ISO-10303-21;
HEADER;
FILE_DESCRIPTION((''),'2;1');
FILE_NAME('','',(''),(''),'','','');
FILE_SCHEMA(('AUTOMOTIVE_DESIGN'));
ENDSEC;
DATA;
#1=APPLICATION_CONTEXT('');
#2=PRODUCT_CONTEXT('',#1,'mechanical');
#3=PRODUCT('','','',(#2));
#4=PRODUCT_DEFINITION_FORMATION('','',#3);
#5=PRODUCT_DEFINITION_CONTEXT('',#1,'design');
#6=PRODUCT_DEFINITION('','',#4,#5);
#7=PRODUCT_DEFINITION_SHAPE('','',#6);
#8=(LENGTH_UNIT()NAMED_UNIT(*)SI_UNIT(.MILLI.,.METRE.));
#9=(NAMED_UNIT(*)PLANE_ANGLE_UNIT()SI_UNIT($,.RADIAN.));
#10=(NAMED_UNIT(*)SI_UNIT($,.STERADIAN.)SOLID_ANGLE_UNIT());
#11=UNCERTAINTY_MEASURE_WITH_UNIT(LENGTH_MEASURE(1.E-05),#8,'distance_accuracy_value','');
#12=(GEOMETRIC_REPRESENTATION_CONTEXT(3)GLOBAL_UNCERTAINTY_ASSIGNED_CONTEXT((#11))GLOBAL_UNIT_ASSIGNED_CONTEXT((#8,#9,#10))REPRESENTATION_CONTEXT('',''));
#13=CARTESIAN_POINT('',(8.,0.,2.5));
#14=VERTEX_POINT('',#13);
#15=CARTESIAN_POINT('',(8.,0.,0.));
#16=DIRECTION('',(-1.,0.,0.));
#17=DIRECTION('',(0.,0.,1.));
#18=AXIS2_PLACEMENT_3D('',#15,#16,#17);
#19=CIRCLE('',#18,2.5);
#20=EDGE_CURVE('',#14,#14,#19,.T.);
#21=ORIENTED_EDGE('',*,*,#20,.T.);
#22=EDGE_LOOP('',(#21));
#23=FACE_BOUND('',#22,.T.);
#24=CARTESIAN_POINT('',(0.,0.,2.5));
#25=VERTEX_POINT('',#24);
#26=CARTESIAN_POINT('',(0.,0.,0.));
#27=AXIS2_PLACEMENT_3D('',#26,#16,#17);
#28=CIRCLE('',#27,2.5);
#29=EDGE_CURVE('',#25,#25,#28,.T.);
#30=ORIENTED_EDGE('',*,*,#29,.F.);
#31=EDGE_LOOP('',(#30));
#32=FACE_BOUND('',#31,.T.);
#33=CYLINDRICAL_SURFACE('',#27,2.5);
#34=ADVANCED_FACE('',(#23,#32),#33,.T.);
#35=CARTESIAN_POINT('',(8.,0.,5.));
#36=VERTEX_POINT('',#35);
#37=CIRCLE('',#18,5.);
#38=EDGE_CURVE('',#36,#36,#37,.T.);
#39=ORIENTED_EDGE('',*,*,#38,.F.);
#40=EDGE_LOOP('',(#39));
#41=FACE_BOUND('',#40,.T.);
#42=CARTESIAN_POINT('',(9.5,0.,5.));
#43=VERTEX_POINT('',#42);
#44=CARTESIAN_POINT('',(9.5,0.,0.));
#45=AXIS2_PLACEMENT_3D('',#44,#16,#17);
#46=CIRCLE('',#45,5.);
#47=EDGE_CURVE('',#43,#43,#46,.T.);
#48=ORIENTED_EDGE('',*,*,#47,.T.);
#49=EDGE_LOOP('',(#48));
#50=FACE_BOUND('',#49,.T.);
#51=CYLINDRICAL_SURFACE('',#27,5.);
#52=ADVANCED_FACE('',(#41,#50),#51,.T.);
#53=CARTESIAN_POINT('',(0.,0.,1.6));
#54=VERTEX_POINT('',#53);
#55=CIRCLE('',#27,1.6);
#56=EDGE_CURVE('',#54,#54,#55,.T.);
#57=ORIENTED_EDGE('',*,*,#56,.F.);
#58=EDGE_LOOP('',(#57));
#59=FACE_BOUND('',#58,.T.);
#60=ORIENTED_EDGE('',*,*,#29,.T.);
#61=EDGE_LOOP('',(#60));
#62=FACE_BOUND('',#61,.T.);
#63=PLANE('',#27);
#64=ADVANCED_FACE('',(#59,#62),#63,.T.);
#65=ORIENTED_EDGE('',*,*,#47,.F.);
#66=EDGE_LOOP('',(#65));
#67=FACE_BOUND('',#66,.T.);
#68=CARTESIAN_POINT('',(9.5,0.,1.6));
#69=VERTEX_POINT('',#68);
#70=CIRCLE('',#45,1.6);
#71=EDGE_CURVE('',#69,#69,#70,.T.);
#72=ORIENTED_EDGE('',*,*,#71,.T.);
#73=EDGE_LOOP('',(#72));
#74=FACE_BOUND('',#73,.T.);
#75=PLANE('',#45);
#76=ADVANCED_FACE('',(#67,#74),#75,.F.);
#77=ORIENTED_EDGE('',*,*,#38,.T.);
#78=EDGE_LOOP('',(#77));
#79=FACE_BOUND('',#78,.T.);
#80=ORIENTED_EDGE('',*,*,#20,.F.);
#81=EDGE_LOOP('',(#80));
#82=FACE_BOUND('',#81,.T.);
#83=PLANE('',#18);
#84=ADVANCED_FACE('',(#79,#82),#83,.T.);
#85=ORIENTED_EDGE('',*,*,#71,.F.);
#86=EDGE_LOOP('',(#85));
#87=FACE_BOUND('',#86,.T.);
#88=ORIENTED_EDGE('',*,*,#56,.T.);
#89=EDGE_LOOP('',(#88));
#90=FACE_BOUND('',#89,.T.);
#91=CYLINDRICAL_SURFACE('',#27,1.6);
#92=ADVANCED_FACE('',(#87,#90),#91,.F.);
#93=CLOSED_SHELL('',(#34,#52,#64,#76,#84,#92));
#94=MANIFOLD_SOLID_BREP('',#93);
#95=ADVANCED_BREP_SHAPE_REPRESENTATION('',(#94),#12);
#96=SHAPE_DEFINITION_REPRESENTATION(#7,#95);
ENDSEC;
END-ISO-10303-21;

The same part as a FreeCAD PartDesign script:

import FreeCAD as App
import Part
import Sketcher


def add_polygon(sketch, points):
    """Adds a closed chain of lines whose ends are joined by coincident constraints."""
    first, n = sketch.GeometryCount, len(points)
    for a, b in zip(points, points[1:] + points[:1]):
        sketch.addGeometry(Part.LineSegment(App.Vector(*a, 0), App.Vector(*b, 0)), False)
    for i in range(n):
        sketch.addConstraint(Sketcher.Constraint("Coincident", first + i, 2, first + (i + 1) % n, 1))

doc = App.newDocument("Part")
body = doc.addObject("PartDesign::Body", "Body")

# Sketch on XY plane
sketch1 = body.newObject("Sketcher::SketchObject", "Sketch")
sketch1.AttachmentSupport = (doc.getObject("XY_Plane"), [""])
sketch1.MapMode = "FlatFace"
add_polygon(sketch1, [(0, 2.5), (0, 1.6), (9.5, 1.6), (9.5, 5), (8, 5), (8, 2.5)])  # lines 0-5
sketch1.addConstraint([
    Sketcher.Constraint("Vertical", 0),
    Sketcher.Constraint("Horizontal", 1),
    Sketcher.Constraint("Vertical", 2),
    Sketcher.Constraint("Horizontal", 3),
    Sketcher.Constraint("Vertical", 4),
    Sketcher.Constraint("Horizontal", 5),
    Sketcher.Constraint("PointOnObject", 0, 2, -2),
    Sketcher.Constraint("DistanceX", 5, 2, 5, 1, 8.0),
    Sketcher.Constraint("DistanceX", 1, 1, 1, 2, 9.5),
    Sketcher.Constraint("DistanceY", 0, 2, 0, 1, 0.9),
    Sketcher.Constraint("DistanceY", 2, 1, 2, 2, 3.4),
    Sketcher.Constraint("DistanceY", -1, 1, 2, 2, 5.0),
])
revolution = body.newObject("PartDesign::Revolution", "Revolution")
revolution.Profile = sketch1
revolution.ReferenceAxis = (sketch1, ["H_Axis"])
revolution.Angle = 360

doc.recompute()
